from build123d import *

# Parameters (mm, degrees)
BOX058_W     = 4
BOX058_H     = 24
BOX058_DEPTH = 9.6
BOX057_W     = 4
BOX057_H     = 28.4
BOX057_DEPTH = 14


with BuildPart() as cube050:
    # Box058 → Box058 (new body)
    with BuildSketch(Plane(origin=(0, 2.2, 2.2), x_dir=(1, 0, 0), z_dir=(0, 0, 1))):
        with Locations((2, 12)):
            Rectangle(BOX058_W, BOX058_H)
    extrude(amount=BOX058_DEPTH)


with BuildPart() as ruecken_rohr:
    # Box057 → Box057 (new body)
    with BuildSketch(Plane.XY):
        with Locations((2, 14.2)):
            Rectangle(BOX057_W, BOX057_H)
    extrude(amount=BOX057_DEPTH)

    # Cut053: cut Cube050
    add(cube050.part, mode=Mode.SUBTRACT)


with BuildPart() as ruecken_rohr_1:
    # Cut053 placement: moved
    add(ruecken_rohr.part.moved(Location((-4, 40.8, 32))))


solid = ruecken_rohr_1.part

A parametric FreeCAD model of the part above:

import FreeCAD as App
import Part
import Sketcher

doc = App.newDocument("Part")
params = doc.addObject("Spreadsheet::Sheet", "Params")
for row, (alias, value) in enumerate([
    ("sketch1_width", "4 mm"),
    ("sketch1_height", "24 mm"),
    ("pad1_length", "9.6 mm"),
    ("sketch2_width", "4 mm"),
    ("sketch2_height", "28.4 mm"),
    ("pad2_length", "14 mm"),
], start=1):
    params.set(f"A{row}", alias)
    params.set(f"B{row}", "=" + value)
    params.setAlias(f"B{row}", alias)

body = doc.addObject("PartDesign::Body", "Body")

# Sketch on XY plane
sketch1 = body.newObject("Sketcher::SketchObject", "Sketch")
sketch1.AttachmentSupport = (doc.getObject("XY_Plane"), [""])
sketch1.MapMode = "FlatFace"
sketch1.AttachmentOffset = App.Placement(App.Vector(0, 0, 2.2), App.Rotation())
sketch1.addGeometry(Part.LineSegment(App.Vector(0, 26.2, 0), App.Vector(0, 2.2, 0)), False)
sketch1.addGeometry(Part.LineSegment(App.Vector(0, 2.2, 0), App.Vector(4, 2.2, 0)), False)
sketch1.addGeometry(Part.LineSegment(App.Vector(4, 2.2, 0), App.Vector(4, 26.2, 0)), False)
sketch1.addGeometry(Part.LineSegment(App.Vector(4, 26.2, 0), App.Vector(0, 26.2, 0)), False)
sketch1.addConstraint(Sketcher.Constraint("Coincident", 0, 2, 1, 1))
sketch1.addConstraint(Sketcher.Constraint("Coincident", 1, 2, 2, 1))
sketch1.addConstraint(Sketcher.Constraint("Coincident", 2, 2, 3, 1))
sketch1.addConstraint(Sketcher.Constraint("Coincident", 3, 2, 0, 1))
sketch1.addConstraint(Sketcher.Constraint("Vertical", 0))
sketch1.addConstraint(Sketcher.Constraint("Horizontal", 1))
sketch1.addConstraint(Sketcher.Constraint("Vertical", 2))
sketch1.addConstraint(Sketcher.Constraint("Horizontal", 3))
sketch1.addConstraint(Sketcher.Constraint("PointOnObject", 0, 2, -2))
sketch1.addConstraint(Sketcher.Constraint("DistanceX", 1, 1, 1, 2, 4.0))
sketch1.addConstraint(Sketcher.Constraint("DistanceY", 0, 2, 0, 1, 24.0))
sketch1.addConstraint(Sketcher.Constraint("DistanceY", -1, 1, 0, 2, 2.2))
sketch1.setExpression("Constraints[9]", "Params.sketch1_width")
sketch1.setExpression("Constraints[10]", "Params.sketch1_height")
pad1 = body.newObject("PartDesign::Pad", "Pad")
pad1.Profile = sketch1
pad1.setExpression("Length", "Params.pad1_length")
body2 = doc.addObject("PartDesign::Body", "Body001")

# Sketch on XY plane
sketch2 = body2.newObject("Sketcher::SketchObject", "Sketch001")
sketch2.AttachmentSupport = (doc.getObject("XY_Plane001"), [""])
sketch2.MapMode = "FlatFace"
sketch2.addGeometry(Part.LineSegment(App.Vector(0, 28.4, 0), App.Vector(0, 0, 0)), False)
sketch2.addGeometry(Part.LineSegment(App.Vector(0, 0, 0), App.Vector(4, 0, 0)), False)
sketch2.addGeometry(Part.LineSegment(App.Vector(4, 0, 0), App.Vector(4, 28.4, 0)), False)
sketch2.addGeometry(Part.LineSegment(App.Vector(4, 28.4, 0), App.Vector(0, 28.4, 0)), False)
sketch2.addConstraint(Sketcher.Constraint("Coincident", 0, 2, 1, 1))
sketch2.addConstraint(Sketcher.Constraint("Coincident", 1, 2, 2, 1))
sketch2.addConstraint(Sketcher.Constraint("Coincident", 2, 2, 3, 1))
sketch2.addConstraint(Sketcher.Constraint("Coincident", 3, 2, 0, 1))
sketch2.addConstraint(Sketcher.Constraint("Vertical", 0))
sketch2.addConstraint(Sketcher.Constraint("Horizontal", 1))
sketch2.addConstraint(Sketcher.Constraint("Vertical", 2))
sketch2.addConstraint(Sketcher.Constraint("Horizontal", 3))
sketch2.addConstraint(Sketcher.Constraint("Coincident", 0, 2, -1, 1))
sketch2.addConstraint(Sketcher.Constraint("DistanceX", 1, 1, 1, 2, 4.0))
sketch2.addConstraint(Sketcher.Constraint("DistanceY", 0, 2, 0, 1, 28.4))
sketch2.setExpression("Constraints[9]", "Params.sketch2_width")
sketch2.setExpression("Constraints[10]", "Params.sketch2_height")
pad2 = body2.newObject("PartDesign::Pad", "Pad001")
pad2.Profile = sketch2
pad2.setExpression("Length", "Params.pad2_length")
doc.recompute()

boolean = body2.newObject("PartDesign::Boolean", "Boolean")
boolean.Type = "Cut"
boolean.addObjects([body])
body3 = doc.addObject("PartDesign::Body", "Body002")
doc.recompute()

body2.Placement = App.Placement(App.Vector(-4, 40.8, 32), App.Rotation(App.Vector(0, 0, 1), 0))
boolean2 = body3.newObject("PartDesign::Boolean", "Boolean001")
boolean2.Type = "Fuse"
boolean2.addObjects([body2])

doc.recompute()
